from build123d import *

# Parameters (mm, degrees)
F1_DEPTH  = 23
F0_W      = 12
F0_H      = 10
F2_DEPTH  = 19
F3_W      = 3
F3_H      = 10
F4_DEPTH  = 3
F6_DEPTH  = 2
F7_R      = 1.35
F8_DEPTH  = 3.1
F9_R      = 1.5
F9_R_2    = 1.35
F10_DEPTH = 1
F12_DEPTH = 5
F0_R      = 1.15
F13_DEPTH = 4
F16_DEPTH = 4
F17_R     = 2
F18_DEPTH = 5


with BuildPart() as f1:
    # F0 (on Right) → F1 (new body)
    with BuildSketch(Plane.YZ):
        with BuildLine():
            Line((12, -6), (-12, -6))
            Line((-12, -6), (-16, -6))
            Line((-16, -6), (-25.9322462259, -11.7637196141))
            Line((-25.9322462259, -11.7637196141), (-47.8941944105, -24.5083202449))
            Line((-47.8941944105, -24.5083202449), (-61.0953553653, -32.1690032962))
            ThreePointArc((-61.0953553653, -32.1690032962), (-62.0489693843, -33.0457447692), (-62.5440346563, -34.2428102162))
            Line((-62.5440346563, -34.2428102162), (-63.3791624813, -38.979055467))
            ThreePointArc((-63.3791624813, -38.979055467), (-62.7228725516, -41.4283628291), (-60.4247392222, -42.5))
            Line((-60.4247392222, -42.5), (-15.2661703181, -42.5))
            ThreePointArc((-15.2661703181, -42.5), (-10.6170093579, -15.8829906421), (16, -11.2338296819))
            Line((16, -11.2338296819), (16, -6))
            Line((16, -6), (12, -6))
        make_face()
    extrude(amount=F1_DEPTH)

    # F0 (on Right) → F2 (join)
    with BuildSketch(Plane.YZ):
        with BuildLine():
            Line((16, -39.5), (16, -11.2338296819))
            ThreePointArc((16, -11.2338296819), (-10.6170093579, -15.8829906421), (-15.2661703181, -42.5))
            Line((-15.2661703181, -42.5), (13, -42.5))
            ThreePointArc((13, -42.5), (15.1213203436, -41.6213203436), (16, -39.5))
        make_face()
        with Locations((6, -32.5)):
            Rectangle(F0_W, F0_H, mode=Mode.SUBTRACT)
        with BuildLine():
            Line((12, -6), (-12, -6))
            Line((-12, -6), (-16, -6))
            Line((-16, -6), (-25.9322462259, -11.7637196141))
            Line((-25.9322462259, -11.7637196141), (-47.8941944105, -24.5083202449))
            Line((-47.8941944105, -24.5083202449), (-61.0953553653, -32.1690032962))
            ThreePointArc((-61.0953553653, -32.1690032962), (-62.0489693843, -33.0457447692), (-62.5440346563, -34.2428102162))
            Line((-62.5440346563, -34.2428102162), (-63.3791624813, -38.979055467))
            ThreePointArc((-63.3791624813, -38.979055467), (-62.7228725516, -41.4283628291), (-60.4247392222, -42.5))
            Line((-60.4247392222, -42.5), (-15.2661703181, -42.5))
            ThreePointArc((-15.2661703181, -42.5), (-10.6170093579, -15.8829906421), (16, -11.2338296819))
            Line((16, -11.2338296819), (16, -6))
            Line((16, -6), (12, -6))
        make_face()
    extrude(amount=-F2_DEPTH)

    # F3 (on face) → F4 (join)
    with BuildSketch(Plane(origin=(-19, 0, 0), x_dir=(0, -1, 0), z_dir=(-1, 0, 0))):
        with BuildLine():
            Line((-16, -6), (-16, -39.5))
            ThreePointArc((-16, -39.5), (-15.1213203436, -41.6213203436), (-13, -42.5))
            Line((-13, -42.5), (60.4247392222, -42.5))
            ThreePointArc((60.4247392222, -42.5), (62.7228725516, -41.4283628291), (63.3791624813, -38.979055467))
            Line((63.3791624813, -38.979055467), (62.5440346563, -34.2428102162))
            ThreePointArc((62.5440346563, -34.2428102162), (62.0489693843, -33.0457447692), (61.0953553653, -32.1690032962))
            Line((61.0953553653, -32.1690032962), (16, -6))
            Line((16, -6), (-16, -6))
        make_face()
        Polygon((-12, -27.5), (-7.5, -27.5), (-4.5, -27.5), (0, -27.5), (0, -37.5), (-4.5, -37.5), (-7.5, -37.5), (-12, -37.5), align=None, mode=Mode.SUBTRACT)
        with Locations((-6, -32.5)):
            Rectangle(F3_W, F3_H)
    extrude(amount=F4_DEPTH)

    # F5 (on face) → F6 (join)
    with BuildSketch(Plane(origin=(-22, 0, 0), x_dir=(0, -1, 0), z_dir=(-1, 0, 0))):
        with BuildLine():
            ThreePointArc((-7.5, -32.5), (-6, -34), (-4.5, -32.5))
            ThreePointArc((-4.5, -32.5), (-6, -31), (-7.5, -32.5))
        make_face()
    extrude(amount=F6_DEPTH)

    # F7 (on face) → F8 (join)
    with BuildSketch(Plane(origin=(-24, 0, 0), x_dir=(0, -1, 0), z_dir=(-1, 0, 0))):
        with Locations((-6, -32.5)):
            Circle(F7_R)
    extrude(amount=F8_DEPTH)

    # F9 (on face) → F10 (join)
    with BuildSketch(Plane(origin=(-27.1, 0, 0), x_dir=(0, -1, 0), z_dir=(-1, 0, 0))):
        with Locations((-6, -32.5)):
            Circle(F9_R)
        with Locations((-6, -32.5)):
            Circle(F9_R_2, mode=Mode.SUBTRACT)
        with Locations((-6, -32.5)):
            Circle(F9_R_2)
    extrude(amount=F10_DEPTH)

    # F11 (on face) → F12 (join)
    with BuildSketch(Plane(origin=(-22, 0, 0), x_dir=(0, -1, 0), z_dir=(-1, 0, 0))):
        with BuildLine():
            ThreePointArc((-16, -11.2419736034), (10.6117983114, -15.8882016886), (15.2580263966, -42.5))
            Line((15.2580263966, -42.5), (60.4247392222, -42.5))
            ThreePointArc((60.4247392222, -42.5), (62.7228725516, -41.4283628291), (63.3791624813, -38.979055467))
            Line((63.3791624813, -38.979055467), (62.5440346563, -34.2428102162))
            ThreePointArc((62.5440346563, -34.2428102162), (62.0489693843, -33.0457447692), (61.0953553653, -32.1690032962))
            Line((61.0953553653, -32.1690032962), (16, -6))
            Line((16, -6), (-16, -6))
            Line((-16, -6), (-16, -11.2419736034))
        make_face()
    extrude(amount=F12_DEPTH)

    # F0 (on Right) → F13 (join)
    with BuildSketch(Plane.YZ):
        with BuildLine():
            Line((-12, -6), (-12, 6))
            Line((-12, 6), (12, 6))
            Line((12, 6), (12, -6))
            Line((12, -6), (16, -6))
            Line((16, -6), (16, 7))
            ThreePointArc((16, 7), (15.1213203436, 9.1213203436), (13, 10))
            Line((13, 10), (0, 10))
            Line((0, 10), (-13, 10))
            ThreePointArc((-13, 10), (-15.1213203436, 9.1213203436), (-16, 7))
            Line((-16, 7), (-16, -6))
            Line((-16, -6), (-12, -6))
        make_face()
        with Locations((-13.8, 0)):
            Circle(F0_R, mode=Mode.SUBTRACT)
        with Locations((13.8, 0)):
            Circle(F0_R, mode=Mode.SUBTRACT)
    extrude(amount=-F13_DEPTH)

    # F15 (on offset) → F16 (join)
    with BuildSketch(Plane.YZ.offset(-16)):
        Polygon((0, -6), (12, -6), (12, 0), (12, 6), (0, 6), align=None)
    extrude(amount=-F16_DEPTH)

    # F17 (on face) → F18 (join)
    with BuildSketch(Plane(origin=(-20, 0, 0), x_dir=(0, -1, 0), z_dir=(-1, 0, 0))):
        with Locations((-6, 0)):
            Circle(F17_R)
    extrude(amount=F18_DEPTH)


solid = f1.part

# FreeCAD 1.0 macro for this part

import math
import FreeCAD as App
import Part
import Sketcher
from FreeCAD import Vector
Q = App.Units.Quantity


def add_polygon(sketch, points):
    """Adds a closed chain of lines whose ends are joined by coincident constraints."""
    first, n = sketch.GeometryCount, len(points)
    for a, b in zip(points, points[1:] + points[:1]):
        sketch.addGeometry(Part.LineSegment(App.Vector(*a, 0), App.Vector(*b, 0)), False)
    for i in range(n):
        sketch.addConstraint(Sketcher.Constraint("Coincident", first + i, 2, first + (i + 1) % n, 1))

doc = App.newDocument("Part")
body = doc.addObject("PartDesign::Body", "Body")

# Sketch on YZ plane
sketch1 = body.newObject("Sketcher::SketchObject", "Sketch")
sketch1.AttachmentSupport = (doc.getObject("YZ_Plane"), [""])
sketch1.MapMode = "FlatFace"
sketch1.addGeometry(Part.LineSegment(Vector(-16, -6, 0), Vector(-25.9, -11.8, 0)), False)
sketch1.addGeometry(Part.LineSegment(Vector(-25.9, -11.8, 0), Vector(-47.9, -24.5, 0)), False)
sketch1.addGeometry(Part.LineSegment(Vector(-47.9, -24.5, 0), Vector(-61.1, -32.2, 0)), False)
sketch1.addGeometry(Part.ArcOfCircle(Part.Circle(Vector(-59.6, -34.8, 0), Vector(0, 0, 1), 3), math.radians(120), math.radians(170)), False)
sketch1.addGeometry(Part.LineSegment(Vector(-62.5, -34.2, 0), Vector(-63.4, -39, 0)), False)
sketch1.addGeometry(Part.ArcOfCircle(Part.Circle(Vector(-60.4, -39.5, 0), Vector(0, 0, 1), 3), math.radians(170), math.radians(270)), False)
sketch1.addGeometry(Part.LineSegment(Vector(-60.4, -42.5, 0), Vector(-15.3, -42.5, 0)), False)
sketch1.addGeometry(Part.ArcOfCircle(Part.Circle(Vector(6, -32.5, 0), Vector(0, 0, 1), 23.5), math.radians(65), math.radians(205)), False)
sketch1.addGeometry(Part.LineSegment(Vector(16, -11.2, 0), Vector(16, -6, 0)), False)
sketch1.addGeometry(Part.LineSegment(Vector(16, -6, 0), Vector(-16, -6, 0)), False)
sketch1.addConstraint(Sketcher.Constraint("Coincident", 0, 2, 1, 1))
sketch1.addConstraint(Sketcher.Constraint("Coincident", 1, 2, 2, 1))
sketch1.addConstraint(Sketcher.Constraint("Tangent", 2, 2, 3, 1))
sketch1.addConstraint(Sketcher.Constraint("Tangent", 3, 2, 4, 1))
sketch1.addConstraint(Sketcher.Constraint("Tangent", 4, 2, 5, 1))
sketch1.addConstraint(Sketcher.Constraint("Tangent", 5, 2, 6, 1))
sketch1.addConstraint(Sketcher.Constraint("Coincident", 6, 2, 7, 2))
sketch1.addConstraint(Sketcher.Constraint("Coincident", 7, 1, 8, 1))
sketch1.addConstraint(Sketcher.Constraint("Coincident", 8, 2, 9, 1))
sketch1.addConstraint(Sketcher.Constraint("Coincident", 9, 2, 0, 1))
sketch1.addConstraint(Sketcher.Constraint("Horizontal", 6))
sketch1.addConstraint(Sketcher.Constraint("Vertical", 8))
sketch1.addConstraint(Sketcher.Constraint("Horizontal", 9))
sketch1.addConstraint(Sketcher.Constraint("Equal", 3, 5))
sketch1.addConstraint(Sketcher.Constraint("Parallel", 0, 1))
sketch1.addConstraint(Sketcher.Constraint("Parallel", 1, 2))
sketch1.addConstraint(Sketcher.Constraint("Radius", 3, 3.0))
sketch1.addConstraint(Sketcher.Constraint("Radius", 7, 23.5))
sketch1.addConstraint(Sketcher.Constraint("DistanceX", 9, 2, 9, 1, 32.0))
sketch1.addConstraint(Sketcher.Constraint("Angle", 4, Q("-100 deg")))
sketch1.addConstraint(Sketcher.Constraint("DistanceX", -1, 1, 7, 3, 6.0))
sketch1.addConstraint(Sketcher.Constraint("DistanceX", -1, 1, 7, 1, 16.0))
sketch1.addConstraint(Sketcher.Constraint("DistanceY", 8, 2, -1, 1, 6.0))
sketch1.addConstraint(Sketcher.Constraint("DistanceY", 5, 3, 7, 3, 7.0))
sketch1.addConstraint(Sketcher.Constraint("DistanceY", 5, 3, -1, 1, 39.5))
sketch1.addConstraint(Sketcher.Constraint("DistanceX", 6, 1, 6, 2, 45.158569))
sketch1.addConstraint(Sketcher.Constraint("DistanceY", 1, 2, 0, 2, 12.744601))
sketch1.addConstraint(Sketcher.Constraint("DistanceY", 4, 2, 3, 3, 4.215301))
sketch1.addConstraint(Sketcher.Constraint("Distance", 2, 15.26292))
pad1 = body.newObject("PartDesign::Pad", "Pad")
pad1.Profile = sketch1
pad1.Length = 23

# Sketch on YZ plane
sketch2 = body.newObject("Sketcher::SketchObject", "Sketch001")
sketch2.AttachmentSupport = (doc.getObject("YZ_Plane"), [""])
sketch2.MapMode = "FlatFace"
sketch2.addGeometry(Part.LineSegment(Vector(16, -39.5, 0), Vector(16, -6, 0)), False)  # 0
sketch2.addGeometry(Part.LineSegment(Vector(16, -6, 0), Vector(-16, -6, 0)), False)  # 1
sketch2.addGeometry(Part.LineSegment(Vector(-16, -6, 0), Vector(-25.9, -11.8, 0)), False)  # 2
sketch2.addGeometry(Part.LineSegment(Vector(-25.9, -11.8, 0), Vector(-47.9, -24.5, 0)), False)  # 3
sketch2.addGeometry(Part.LineSegment(Vector(-47.9, -24.5, 0), Vector(-61.1, -32.2, 0)), False)  # 4
sketch2.addGeometry(Part.ArcOfCircle(Part.Circle(Vector(-59.6, -34.8, 0), Vector(0, 0, 1), 3), math.radians(120), math.radians(170)), False)  # 5
sketch2.addGeometry(Part.LineSegment(Vector(-62.5, -34.2, 0), Vector(-63.4, -39, 0)), False)  # 6
sketch2.addGeometry(Part.ArcOfCircle(Part.Circle(Vector(-60.4, -39.5, 0), Vector(0, 0, 1), 3), math.radians(170), math.radians(270)), False)  # 7
sketch2.addGeometry(Part.LineSegment(Vector(-60.4, -42.5, 0), Vector(13, -42.5, 0)), False)  # 8
sketch2.addGeometry(Part.ArcOfCircle(Part.Circle(Vector(13, -39.5, 0), Vector(0, 0, 1), 3), math.radians(-90), math.radians(0)), False)  # 9
add_polygon(sketch2, [(12, -37.5), (0, -37.5), (0, -27.5), (12, -27.5)])  # lines 10-13
sketch2.addConstraint(Sketcher.Constraint("Coincident", 0, 2, 1, 1))
sketch2.addConstraint(Sketcher.Constraint("Coincident", 1, 2, 2, 1))
sketch2.addConstraint(Sketcher.Constraint("Coincident", 2, 2, 3, 1))
sketch2.addConstraint(Sketcher.Constraint("Coincident", 3, 2, 4, 1))
sketch2.addConstraint(Sketcher.Constraint("Tangent", 4, 2, 5, 1))
sketch2.addConstraint(Sketcher.Constraint("Tangent", 5, 2, 6, 1))
sketch2.addConstraint(Sketcher.Constraint("Tangent", 6, 2, 7, 1))
sketch2.addConstraint(Sketcher.Constraint("Tangent", 7, 2, 8, 1))
sketch2.addConstraint(Sketcher.Constraint("Tangent", 8, 2, 9, 1))
sketch2.addConstraint(Sketcher.Constraint("Tangent", 9, 2, 0, 1))
sketch2.addConstraint(Sketcher.Constraint("Vertical", 0))
sketch2.addConstraint(Sketcher.Constraint("Horizontal", 1))
sketch2.addConstraint(Sketcher.Constraint("Horizontal", 8))
sketch2.addConstraint(Sketcher.Constraint("Horizontal", 10))
sketch2.addConstraint(Sketcher.Constraint("Vertical", 11))
sketch2.addConstraint(Sketcher.Constraint("Horizontal", 12))
sketch2.addConstraint(Sketcher.Constraint("Vertical", 13))
sketch2.addConstraint(Sketcher.Constraint("Equal", 5, 7))
sketch2.addConstraint(Sketcher.Constraint("Equal", 7, 9))
sketch2.addConstraint(Sketcher.Constraint("PointOnObject", 10, 2, -2))
sketch2.addConstraint(Sketcher.Constraint("Parallel", 2, 3))
sketch2.addConstraint(Sketcher.Constraint("Parallel", 3, 4))
sketch2.addConstraint(Sketcher.Constraint("Radius", 5, 3.0))
sketch2.addConstraint(Sketcher.Constraint("DistanceX", 1, 2, 1, 1, 32.0))
sketch2.addConstraint(Sketcher.Constraint("DistanceX", 10, 2, 10, 1, 12.0))
sketch2.addConstraint(Sketcher.Constraint("DistanceY", 11, 1, 11, 2, 10.0))
sketch2.addConstraint(Sketcher.Constraint("Angle", 6, Q("-100 deg")))
sketch2.addConstraint(Sketcher.Constraint("DistanceY", 0, 1, 0, 2, 33.5))
sketch2.addConstraint(Sketcher.Constraint("DistanceX", -1, 1, 9, 3, 13.0))
sketch2.addConstraint(Sketcher.Constraint("DistanceY", 0, 2, -1, 1, 6.0))
sketch2.addConstraint(Sketcher.Constraint("DistanceY", 9, 3, 10, 2, 2.0))
sketch2.addConstraint(Sketcher.Constraint("DistanceX", 8, 1, 8, 2, 73.424739))
sketch2.addConstraint(Sketcher.Constraint("DistanceY", 3, 2, 2, 2, 12.744601))
sketch2.addConstraint(Sketcher.Constraint("DistanceY", 6, 2, 5, 3, 4.215301))
sketch2.addConstraint(Sketcher.Constraint("Distance", 4, 15.26292))
pad2 = body.newObject("PartDesign::Pad", "Pad001")
pad2.Profile = sketch2
pad2.Length = 19
pad2.Reversed = True

# Sketch on YZ plane
sketch3 = body.newObject("Sketcher::SketchObject", "Sketch002")
sketch3.AttachmentSupport = (doc.getObject("YZ_Plane"), [""])
sketch3.MapMode = "FlatFace"
sketch3.AttachmentOffset = App.Placement(Vector(0, 0, -19), App.Rotation())
sketch3.addGeometry(Part.LineSegment(Vector(16, -6, 0), Vector(16, -39.5, 0)), False)  # 0
sketch3.addGeometry(Part.ArcOfCircle(Part.Circle(Vector(13, -39.5, 0), Vector(0, 0, 1), 3), math.radians(-90), math.radians(0)), False)  # 1
sketch3.addGeometry(Part.LineSegment(Vector(13, -42.5, 0), Vector(-60.4, -42.5, 0)), False)  # 2
sketch3.addGeometry(Part.ArcOfCircle(Part.Circle(Vector(-60.4, -39.5, 0), Vector(0, 0, 1), 3), math.radians(170), math.radians(270)), False)  # 3
sketch3.addGeometry(Part.LineSegment(Vector(-63.4, -39, 0), Vector(-62.5, -34.2, 0)), False)  # 4
sketch3.addGeometry(Part.ArcOfCircle(Part.Circle(Vector(-59.6, -34.8, 0), Vector(0, 0, 1), 3), math.radians(120), math.radians(170)), False)  # 5
sketch3.addGeometry(Part.LineSegment(Vector(-61.1, -32.2, 0), Vector(-16, -6, 0)), False)  # 6
sketch3.addGeometry(Part.LineSegment(Vector(-16, -6, 0), Vector(16, -6, 0)), False)  # 7
add_polygon(sketch3, [(12, -37.5), (12, -27.5), (7.5, -27.5), (7.5, -37.5)])  # lines 8-11
add_polygon(sketch3, [(4.5, -27.5), (0, -27.5), (0, -37.5), (4.5, -37.5)])  # lines 12-15
sketch3.addConstraint(Sketcher.Constraint("Tangent", 0, 2, 1, 2))
sketch3.addConstraint(Sketcher.Constraint("Tangent", 1, 1, 2, 1))
sketch3.addConstraint(Sketcher.Constraint("Tangent", 2, 2, 3, 2))
sketch3.addConstraint(Sketcher.Constraint("Tangent", 3, 1, 4, 1))
sketch3.addConstraint(Sketcher.Constraint("Tangent", 4, 2, 5, 2))
sketch3.addConstraint(Sketcher.Constraint("Tangent", 5, 1, 6, 1))
sketch3.addConstraint(Sketcher.Constraint("Coincident", 6, 2, 7, 1))
sketch3.addConstraint(Sketcher.Constraint("Coincident", 7, 2, 0, 1))
sketch3.addConstraint(Sketcher.Constraint("Vertical", 0))
sketch3.addConstraint(Sketcher.Constraint("Horizontal", 2))
sketch3.addConstraint(Sketcher.Constraint("Horizontal", 7))
sketch3.addConstraint(Sketcher.Constraint("Vertical", 8))
sketch3.addConstraint(Sketcher.Constraint("Horizontal", 9))
sketch3.addConstraint(Sketcher.Constraint("Vertical", 10))
sketch3.addConstraint(Sketcher.Constraint("Horizontal", 11))
sketch3.addConstraint(Sketcher.Constraint("Horizontal", 12))
sketch3.addConstraint(Sketcher.Constraint("Vertical", 13))
sketch3.addConstraint(Sketcher.Constraint("Horizontal", 14))
sketch3.addConstraint(Sketcher.Constraint("Vertical", 15))
sketch3.addConstraint(Sketcher.Constraint("Equal", 1, 3))
sketch3.addConstraint(Sketcher.Constraint("Equal", 3, 5))
sketch3.addConstraint(Sketcher.Constraint("PointOnObject", 12, 2, -2))
sketch3.addConstraint(Sketcher.Constraint("Horizontal", 9, 2, 12, 2))
sketch3.addConstraint(Sketcher.Constraint("Horizontal", 11, 2, 13, 2))
sketch3.addConstraint(Sketcher.Constraint("Equal", 11, 12))
sketch3.addConstraint(Sketcher.Constraint("Radius", 1, 3.0))
sketch3.addConstraint(Sketcher.Constraint("DistanceX", 7, 1, 7, 2, 32.0))
sketch3.addConstraint(Sketcher.Constraint("DistanceY", 8, 1, 8, 2, 10.0))
sketch3.addConstraint(Sketcher.Constraint("Angle", 4, Q("80 deg")))
sketch3.addConstraint(Sketcher.Constraint("DistanceX", 9, 2, 9, 1, 4.5))
sketch3.addConstraint(Sketcher.Constraint("DistanceY", 0, 2, 0, 1, 33.5))
sketch3.addConstraint(Sketcher.Constraint("DistanceX", -1, 1, 1, 3, 13.0))
sketch3.addConstraint(Sketcher.Constraint("DistanceY", 6, 2, -1, 1, 6.0))
sketch3.addConstraint(Sketcher.Constraint("DistanceX", -1, 1, 8, 2, 12.0))
sketch3.addConstraint(Sketcher.Constraint("DistanceY", 1, 3, 8, 2, 12.0))
sketch3.addConstraint(Sketcher.Constraint("DistanceX", 2, 2, 2, 1, 73.424739))
sketch3.addConstraint(Sketcher.Constraint("DistanceY", 3, 1, 5, 3, 4.215301))
pad3 = body.newObject("PartDesign::Pad", "Pad002")
pad3.Profile = sketch3
pad3.Length = 3
pad3.Reversed = True

# Sketch on YZ plane
sketch4 = body.newObject("Sketcher::SketchObject", "Sketch003")
sketch4.AttachmentSupport = (doc.getObject("YZ_Plane"), [""])
sketch4.MapMode = "FlatFace"
sketch4.AttachmentOffset = App.Placement(Vector(0, 0, -22), App.Rotation())
sketch4.addGeometry(Part.Circle(Vector(6, -32.5, 0), Vector(0, 0, 1), 1.5), False)
sketch4.addConstraint(Sketcher.Constraint("Diameter", 0, 3.0))
sketch4.addConstraint(Sketcher.Constraint("DistanceX", -1, 1, 0, 3, 6.0))
sketch4.addConstraint(Sketcher.Constraint("DistanceY", 0, 3, -1, 1, 32.5))
pad4 = body.newObject("PartDesign::Pad", "Pad003")
pad4.Profile = sketch4
pad4.Length = 2
pad4.Reversed = True

# Sketch on YZ plane
sketch5 = body.newObject("Sketcher::SketchObject", "Sketch004")
sketch5.AttachmentSupport = (doc.getObject("YZ_Plane"), [""])
sketch5.MapMode = "FlatFace"
sketch5.AttachmentOffset = App.Placement(Vector(0, 0, -24), App.Rotation())
sketch5.addGeometry(Part.Circle(Vector(6, -32.5, 0), Vector(0, 0, 1), 1.4), False)
sketch5.addConstraint(Sketcher.Constraint("Diameter", 0, 2.7))
sketch5.addConstraint(Sketcher.Constraint("DistanceX", -1, 1, 0, 3, 6.0))
sketch5.addConstraint(Sketcher.Constraint("DistanceY", 0, 3, -1, 1, 32.5))
pad5 = body.newObject("PartDesign::Pad", "Pad004")
pad5.Profile = sketch5
pad5.Length = 3.1
pad5.Reversed = True

# Sketch on YZ plane
sketch6 = body.newObject("Sketcher::SketchObject", "Sketch005")
sketch6.AttachmentSupport = (doc.getObject("YZ_Plane"), [""])
sketch6.MapMode = "FlatFace"
sketch6.AttachmentOffset = App.Placement(Vector(0, 0, -27.1), App.Rotation())
sketch6.addGeometry(Part.Circle(Vector(6, -32.5, 0), Vector(0, 0, 1), 1.5), False)
sketch6.addConstraint(Sketcher.Constraint("Diameter", 0, 3.0))
sketch6.addConstraint(Sketcher.Constraint("DistanceX", -1, 1, 0, 3, 6.0))
sketch6.addConstraint(Sketcher.Constraint("DistanceY", 0, 3, -1, 1, 32.5))
pad6 = body.newObject("PartDesign::Pad", "Pad005")
pad6.Profile = sketch6
pad6.Length = 1
pad6.Reversed = True

# Sketch on YZ plane
sketch7 = body.newObject("Sketcher::SketchObject", "Sketch006")
sketch7.AttachmentSupport = (doc.getObject("YZ_Plane"), [""])
sketch7.MapMode = "FlatFace"
sketch7.AttachmentOffset = App.Placement(Vector(0, 0, -22), App.Rotation())
sketch7.addGeometry(Part.ArcOfCircle(Part.Circle(Vector(6, -32.5, 0), Vector(0, 0, 1), 23.5), math.radians(65), math.radians(205)), False)
sketch7.addGeometry(Part.LineSegment(Vector(-15.3, -42.5, 0), Vector(-60.4, -42.5, 0)), False)
sketch7.addGeometry(Part.ArcOfCircle(Part.Circle(Vector(-60.4, -39.5, 0), Vector(0, 0, 1), 3), math.radians(170), math.radians(270)), False)
sketch7.addGeometry(Part.LineSegment(Vector(-63.4, -39, 0), Vector(-62.5, -34.2, 0)), False)
sketch7.addGeometry(Part.ArcOfCircle(Part.Circle(Vector(-59.6, -34.8, 0), Vector(0, 0, 1), 3), math.radians(120), math.radians(170)), False)
sketch7.addGeometry(Part.LineSegment(Vector(-61.1, -32.2, 0), Vector(-16, -6, 0)), False)
sketch7.addGeometry(Part.LineSegment(Vector(-16, -6, 0), Vector(16, -6, 0)), False)
sketch7.addGeometry(Part.LineSegment(Vector(16, -6, 0), Vector(16, -11.2, 0)), False)
sketch7.addConstraint(Sketcher.Constraint("Coincident", 0, 2, 1, 1))
sketch7.addConstraint(Sketcher.Constraint("Tangent", 1, 2, 2, 2))
sketch7.addConstraint(Sketcher.Constraint("Tangent", 2, 1, 3, 1))
sketch7.addConstraint(Sketcher.Constraint("Tangent", 3, 2, 4, 2))
sketch7.addConstraint(Sketcher.Constraint("Tangent", 4, 1, 5, 1))
sketch7.addConstraint(Sketcher.Constraint("Coincident", 5, 2, 6, 1))
sketch7.addConstraint(Sketcher.Constraint("Coincident", 6, 2, 7, 1))
sketch7.addConstraint(Sketcher.Constraint("Coincident", 7, 2, 0, 1))
sketch7.addConstraint(Sketcher.Constraint("Horizontal", 1))
sketch7.addConstraint(Sketcher.Constraint("Horizontal", 6))
sketch7.addConstraint(Sketcher.Constraint("Vertical", 7))
sketch7.addConstraint(Sketcher.Constraint("Equal", 2, 4))
sketch7.addConstraint(Sketcher.Constraint("Radius", 2, 3.0))
sketch7.addConstraint(Sketcher.Constraint("DistanceX", 6, 1, 6, 2, 32.0))
sketch7.addConstraint(Sketcher.Constraint("Angle", 3, Q("80 deg")))
sketch7.addConstraint(Sketcher.Constraint("DistanceX", -1, 1, 0, 3, 6.0))
sketch7.addConstraint(Sketcher.Constraint("DistanceX", 5, 2, -1, 1, 16.0))
sketch7.addConstraint(Sketcher.Constraint("DistanceY", 5, 2, -1, 1, 6.0))
sketch7.addConstraint(Sketcher.Constraint("DistanceY", 2, 3, 0, 3, 7.0))
sketch7.addConstraint(Sketcher.Constraint("DistanceY", 0, 3, -1, 1, 32.5))
sketch7.addConstraint(Sketcher.Constraint("Radius", 0, 23.49263))
sketch7.addConstraint(Sketcher.Constraint("DistanceY", 2, 1, 4, 3, 4.215301))
sketch7.addConstraint(Sketcher.Constraint("DistanceX", 1, 2, 1, 1, 45.166713))
pad7 = body.newObject("PartDesign::Pad", "Pad006")
pad7.Profile = sketch7
pad7.Length = 5
pad7.Reversed = True

# Sketch on YZ plane
sketch8 = body.newObject("Sketcher::SketchObject", "Sketch007")
sketch8.AttachmentSupport = (doc.getObject("YZ_Plane"), [""])
sketch8.MapMode = "FlatFace"
sketch8.addGeometry(Part.LineSegment(Vector(-12, -6, 0), Vector(-12, 6, 0)), False)
sketch8.addGeometry(Part.LineSegment(Vector(-12, 6, 0), Vector(12, 6, 0)), False)
sketch8.addGeometry(Part.LineSegment(Vector(12, 6, 0), Vector(12, -6, 0)), False)
sketch8.addGeometry(Part.LineSegment(Vector(12, -6, 0), Vector(16, -6, 0)), False)
sketch8.addGeometry(Part.LineSegment(Vector(16, -6, 0), Vector(16, 7, 0)), False)
sketch8.addGeometry(Part.ArcOfCircle(Part.Circle(Vector(13, 7, 0), Vector(0, 0, 1), 3), math.radians(0), math.radians(90)), False)
sketch8.addGeometry(Part.LineSegment(Vector(13, 10, 0), Vector(-13, 10, 0)), False)
sketch8.addGeometry(Part.ArcOfCircle(Part.Circle(Vector(-13, 7, 0), Vector(0, 0, 1), 3), math.radians(90), math.radians(180)), False)
sketch8.addGeometry(Part.LineSegment(Vector(-16, 7, 0), Vector(-16, -6, 0)), False)
sketch8.addGeometry(Part.LineSegment(Vector(-16, -6, 0), Vector(-12, -6, 0)), False)
sketch8.addGeometry(Part.Circle(Vector(-13.8, 0, 0), Vector(0, 0, 1), 1.1), False)
sketch8.addGeometry(Part.Circle(Vector(13.8, 0, 0), Vector(0, 0, 1), 1.1), False)
sketch8.addConstraint(Sketcher.Constraint("Coincident", 0, 2, 1, 1))
sketch8.addConstraint(Sketcher.Constraint("Coincident", 1, 2, 2, 1))
sketch8.addConstraint(Sketcher.Constraint("Coincident", 2, 2, 3, 1))
sketch8.addConstraint(Sketcher.Constraint("Coincident", 3, 2, 4, 1))
sketch8.addConstraint(Sketcher.Constraint("Tangent", 4, 2, 5, 1))
sketch8.addConstraint(Sketcher.Constraint("Tangent", 5, 2, 6, 1))
sketch8.addConstraint(Sketcher.Constraint("Tangent", 6, 2, 7, 1))
sketch8.addConstraint(Sketcher.Constraint("Tangent", 7, 2, 8, 1))
sketch8.addConstraint(Sketcher.Constraint("Coincident", 8, 2, 9, 1))
sketch8.addConstraint(Sketcher.Constraint("Coincident", 9, 2, 0, 1))
sketch8.addConstraint(Sketcher.Constraint("Vertical", 0))
sketch8.addConstraint(Sketcher.Constraint("Horizontal", 1))
sketch8.addConstraint(Sketcher.Constraint("Vertical", 2))
sketch8.addConstraint(Sketcher.Constraint("Horizontal", 3))
sketch8.addConstraint(Sketcher.Constraint("Vertical", 4))
sketch8.addConstraint(Sketcher.Constraint("Horizontal", 6))
sketch8.addConstraint(Sketcher.Constraint("Vertical", 8))
sketch8.addConstraint(Sketcher.Constraint("Horizontal", 9))
sketch8.addConstraint(Sketcher.Constraint("Equal", 5, 7))
sketch8.addConstraint(Sketcher.Constraint("Equal", 10, 11))
sketch8.addConstraint(Sketcher.Constraint("Symmetric", 10, 3, 11, 3, -1, 1))
sketch8.addConstraint(Sketcher.Constraint("Symmetric", 0, 2, 2, 2, -1, 1))
sketch8.addConstraint(Sketcher.Constraint("Symmetric", 3, 2, 8, 2, -2))
sketch8.addConstraint(Sketcher.Constraint("PointOnObject", 10, 3, -1))
sketch8.addConstraint(Sketcher.Constraint("Radius", 5, 3.0))
sketch8.addConstraint(Sketcher.Constraint("Diameter", 10, 2.3))
sketch8.addConstraint(Sketcher.Constraint("DistanceX", 1, 1, 1, 2, 24.0))
sketch8.addConstraint(Sketcher.Constraint("DistanceX", 3, 1, 3, 2, 4.0))
sketch8.addConstraint(Sketcher.Constraint("DistanceY", 0, 1, 0, 2, 12.0))
sketch8.addConstraint(Sketcher.Constraint("DistanceY", 4, 1, 4, 2, 13.0))
sketch8.addConstraint(Sketcher.Constraint("DistanceX", 10, 3, -1, 1, 13.8))
pad8 = body.newObject("PartDesign::Pad", "Pad007")
pad8.Profile = sketch8
pad8.Length = 4
pad8.Reversed = True

# Sketch on YZ plane
sketch9 = body.newObject("Sketcher::SketchObject", "Sketch008")
sketch9.AttachmentSupport = (doc.getObject("YZ_Plane"), [""])
sketch9.MapMode = "FlatFace"
sketch9.AttachmentOffset = App.Placement(Vector(0, 0, -16), App.Rotation())
add_polygon(sketch9, [(0, -6), (12, -6), (12, 6), (0, 6)])  # lines 0-3
sketch9.addConstraint(Sketcher.Constraint("Horizontal", 0))
sketch9.addConstraint(Sketcher.Constraint("Vertical", 1))
sketch9.addConstraint(Sketcher.Constraint("Horizontal", 2))
sketch9.addConstraint(Sketcher.Constraint("Vertical", 3))
sketch9.addConstraint(Sketcher.Constraint("Symmetric", 2, 2, 3, 2, -1, 1))
sketch9.addConstraint(Sketcher.Constraint("Equal", 2, 1))
sketch9.addConstraint(Sketcher.Constraint("DistanceX", 0, 1, 0, 2, 12.0))
pad9 = body.newObject("PartDesign::Pad", "Pad008")
pad9.Profile = sketch9
pad9.Length = 4
pad9.Reversed = True

# Sketch on YZ plane
sketch10 = body.newObject("Sketcher::SketchObject", "Sketch009")
sketch10.AttachmentSupport = (doc.getObject("YZ_Plane"), [""])
sketch10.MapMode = "FlatFace"
sketch10.AttachmentOffset = App.Placement(Vector(0, 0, -20), App.Rotation())
sketch10.addGeometry(Part.Circle(Vector(6, 0, 0), Vector(0, 0, 1), 2), False)
sketch10.addConstraint(Sketcher.Constraint("PointOnObject", 0, 3, -1))
sketch10.addConstraint(Sketcher.Constraint("Diameter", 0, 4.0))
sketch10.addConstraint(Sketcher.Constraint("DistanceX", -1, 1, 0, 3, 6.0))
pad10 = body.newObject("PartDesign::Pad", "Pad009")
pad10.Profile = sketch10
pad10.Length = 5
pad10.Reversed = True

doc.recompute()
